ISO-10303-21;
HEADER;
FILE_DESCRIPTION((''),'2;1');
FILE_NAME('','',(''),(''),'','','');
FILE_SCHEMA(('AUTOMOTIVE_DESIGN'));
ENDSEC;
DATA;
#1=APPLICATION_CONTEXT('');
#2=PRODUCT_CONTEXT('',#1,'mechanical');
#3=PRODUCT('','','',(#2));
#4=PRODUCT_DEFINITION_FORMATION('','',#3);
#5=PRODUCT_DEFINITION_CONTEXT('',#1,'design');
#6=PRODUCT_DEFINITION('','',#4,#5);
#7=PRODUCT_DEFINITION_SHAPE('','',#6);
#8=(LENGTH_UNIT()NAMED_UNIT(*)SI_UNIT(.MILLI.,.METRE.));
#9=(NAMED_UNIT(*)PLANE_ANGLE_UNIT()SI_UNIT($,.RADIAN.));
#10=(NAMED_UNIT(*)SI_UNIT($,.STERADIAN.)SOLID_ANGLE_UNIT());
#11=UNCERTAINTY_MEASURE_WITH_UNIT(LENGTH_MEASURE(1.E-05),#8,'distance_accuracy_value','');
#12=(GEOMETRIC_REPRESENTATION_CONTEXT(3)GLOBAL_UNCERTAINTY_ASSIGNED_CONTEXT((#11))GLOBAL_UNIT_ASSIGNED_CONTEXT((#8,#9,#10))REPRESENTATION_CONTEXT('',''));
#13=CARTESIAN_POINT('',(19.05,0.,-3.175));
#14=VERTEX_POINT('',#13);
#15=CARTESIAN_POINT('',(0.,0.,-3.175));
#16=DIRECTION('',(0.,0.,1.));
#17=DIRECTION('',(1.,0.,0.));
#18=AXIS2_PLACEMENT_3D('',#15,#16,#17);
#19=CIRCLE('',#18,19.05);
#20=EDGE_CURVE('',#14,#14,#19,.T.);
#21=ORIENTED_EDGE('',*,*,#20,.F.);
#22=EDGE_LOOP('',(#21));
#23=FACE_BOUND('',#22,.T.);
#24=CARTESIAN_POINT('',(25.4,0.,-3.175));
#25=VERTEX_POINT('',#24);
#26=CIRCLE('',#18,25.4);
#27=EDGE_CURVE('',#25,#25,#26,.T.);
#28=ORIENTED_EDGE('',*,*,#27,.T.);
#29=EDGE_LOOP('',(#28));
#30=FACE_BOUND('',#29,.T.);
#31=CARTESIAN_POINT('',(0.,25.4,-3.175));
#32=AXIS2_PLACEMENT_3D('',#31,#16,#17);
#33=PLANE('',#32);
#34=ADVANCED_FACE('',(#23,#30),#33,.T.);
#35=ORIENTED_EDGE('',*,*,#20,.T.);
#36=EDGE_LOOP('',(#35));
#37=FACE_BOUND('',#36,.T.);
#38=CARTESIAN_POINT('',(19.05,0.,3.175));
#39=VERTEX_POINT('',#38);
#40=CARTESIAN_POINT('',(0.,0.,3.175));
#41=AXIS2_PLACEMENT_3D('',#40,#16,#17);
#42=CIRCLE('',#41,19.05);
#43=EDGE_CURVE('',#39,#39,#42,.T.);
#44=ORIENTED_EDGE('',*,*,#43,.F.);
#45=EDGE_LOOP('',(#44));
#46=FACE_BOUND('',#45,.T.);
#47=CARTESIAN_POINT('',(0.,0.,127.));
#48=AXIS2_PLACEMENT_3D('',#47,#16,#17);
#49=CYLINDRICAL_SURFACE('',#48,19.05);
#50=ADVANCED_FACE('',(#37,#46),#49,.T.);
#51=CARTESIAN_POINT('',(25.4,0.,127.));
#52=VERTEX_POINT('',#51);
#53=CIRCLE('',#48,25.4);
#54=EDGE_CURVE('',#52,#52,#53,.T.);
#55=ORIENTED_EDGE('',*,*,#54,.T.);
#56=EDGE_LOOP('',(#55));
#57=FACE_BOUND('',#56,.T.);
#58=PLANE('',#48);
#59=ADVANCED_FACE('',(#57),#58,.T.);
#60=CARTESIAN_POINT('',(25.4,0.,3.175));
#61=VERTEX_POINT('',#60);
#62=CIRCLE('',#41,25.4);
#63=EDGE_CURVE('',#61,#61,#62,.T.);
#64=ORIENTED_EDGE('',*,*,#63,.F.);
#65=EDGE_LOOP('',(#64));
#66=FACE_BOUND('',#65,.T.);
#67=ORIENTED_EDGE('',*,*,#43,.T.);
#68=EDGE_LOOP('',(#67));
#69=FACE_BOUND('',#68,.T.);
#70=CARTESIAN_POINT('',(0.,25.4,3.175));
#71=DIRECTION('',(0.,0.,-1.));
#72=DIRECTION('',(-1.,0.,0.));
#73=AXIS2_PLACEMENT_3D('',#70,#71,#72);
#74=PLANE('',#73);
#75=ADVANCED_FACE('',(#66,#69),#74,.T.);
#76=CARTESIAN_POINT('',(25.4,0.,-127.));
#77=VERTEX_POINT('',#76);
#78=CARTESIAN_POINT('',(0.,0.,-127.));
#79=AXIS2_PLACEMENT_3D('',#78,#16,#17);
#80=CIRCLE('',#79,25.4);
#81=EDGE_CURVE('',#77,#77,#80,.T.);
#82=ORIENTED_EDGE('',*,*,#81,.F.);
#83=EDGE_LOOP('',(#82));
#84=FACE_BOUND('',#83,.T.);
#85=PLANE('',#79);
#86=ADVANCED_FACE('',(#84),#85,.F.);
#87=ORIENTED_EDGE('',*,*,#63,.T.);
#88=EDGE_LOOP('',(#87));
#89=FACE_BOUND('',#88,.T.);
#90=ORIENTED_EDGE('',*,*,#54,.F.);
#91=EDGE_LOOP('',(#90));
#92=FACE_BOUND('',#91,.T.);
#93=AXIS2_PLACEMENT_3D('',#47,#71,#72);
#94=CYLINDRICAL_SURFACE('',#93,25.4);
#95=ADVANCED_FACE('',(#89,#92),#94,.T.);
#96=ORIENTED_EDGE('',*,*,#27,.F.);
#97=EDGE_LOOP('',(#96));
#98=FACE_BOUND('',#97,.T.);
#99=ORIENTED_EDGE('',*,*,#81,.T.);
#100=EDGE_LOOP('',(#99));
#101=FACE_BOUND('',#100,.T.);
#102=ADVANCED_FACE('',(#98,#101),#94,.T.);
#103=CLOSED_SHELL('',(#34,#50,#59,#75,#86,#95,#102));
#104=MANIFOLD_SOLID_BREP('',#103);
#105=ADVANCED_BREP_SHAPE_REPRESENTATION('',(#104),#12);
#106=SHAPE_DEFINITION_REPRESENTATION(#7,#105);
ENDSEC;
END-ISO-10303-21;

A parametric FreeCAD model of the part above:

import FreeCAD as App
import Part
import Sketcher

V = App.Vector
Q = App.Units.Quantity

doc = App.newDocument("Part")
body = doc.addObject("PartDesign::Body", "Body")

sketch1 = body.newObject("Sketcher::SketchObject", "Sketch")
sketch1.AttachmentSupport = (doc.getObject("XY_Plane"), [""])
sketch1.MapMode = "FlatFace"
sketch1.addGeometry(Part.Circle(V(0, 0, 0), V(0, 0, 1), 25), False)
sketch1.addConstraint(Sketcher.Constraint("Coincident", 0, 3, -1, 1))
sketch1.addConstraint(Sketcher.Constraint("Diameter", 0, Q("2 in")))
pad1 = body.newObject("PartDesign::Pad", "Pad")
pad1.Profile = sketch1
pad1.Length = Q("10 in")
pad1.Midplane = True

sketch2 = body.newObject("Sketcher::SketchObject", "Sketch001")
sketch2.AttachmentSupport = (doc.getObject("YZ_Plane"), [""])
sketch2.MapMode = "FlatFace"
sketch2.addGeometry(Part.LineSegment(V(25, 3, 0), V(19, 3, 0)), False)
sketch2.addGeometry(Part.LineSegment(V(19, 3, 0), V(19, -3, 0)), False)
sketch2.addGeometry(Part.LineSegment(V(19, -3, 0), V(25, -3, 0)), False)
sketch2.addGeometry(Part.LineSegment(V(25, -3, 0), V(25, 3, 0)), False)
sketch2.addConstraint(Sketcher.Constraint("Coincident", 0, 2, 1, 1))
sketch2.addConstraint(Sketcher.Constraint("Coincident", 1, 2, 2, 1))
sketch2.addConstraint(Sketcher.Constraint("Coincident", 2, 2, 3, 1))
sketch2.addConstraint(Sketcher.Constraint("Coincident", 3, 2, 0, 1))
sketch2.addConstraint(Sketcher.Constraint("Horizontal", 0))
sketch2.addConstraint(Sketcher.Constraint("Vertical", 1))
sketch2.addConstraint(Sketcher.Constraint("Horizontal", 2))
sketch2.addConstraint(Sketcher.Constraint("Vertical", 3))
sketch2.addConstraint(Sketcher.Constraint("Equal", 2, 1))
sketch2.addConstraint(Sketcher.Constraint("DistanceX", -1, 1, 2, 2, Q("1 in")))
sketch2.addConstraint(Sketcher.Constraint("DistanceX", 0, 2, 0, 1, Q("0.25 in")))
sketch2.addConstraint(Sketcher.Constraint("DistanceY", -1, 1, 0, 2, Q("0.125 in")))
groove = body.newObject("PartDesign::Groove", "Groove")
groove.Profile = sketch2
groove.ReferenceAxis = (sketch2, ["V_Axis"])
groove.Angle = 360

doc.recompute()
